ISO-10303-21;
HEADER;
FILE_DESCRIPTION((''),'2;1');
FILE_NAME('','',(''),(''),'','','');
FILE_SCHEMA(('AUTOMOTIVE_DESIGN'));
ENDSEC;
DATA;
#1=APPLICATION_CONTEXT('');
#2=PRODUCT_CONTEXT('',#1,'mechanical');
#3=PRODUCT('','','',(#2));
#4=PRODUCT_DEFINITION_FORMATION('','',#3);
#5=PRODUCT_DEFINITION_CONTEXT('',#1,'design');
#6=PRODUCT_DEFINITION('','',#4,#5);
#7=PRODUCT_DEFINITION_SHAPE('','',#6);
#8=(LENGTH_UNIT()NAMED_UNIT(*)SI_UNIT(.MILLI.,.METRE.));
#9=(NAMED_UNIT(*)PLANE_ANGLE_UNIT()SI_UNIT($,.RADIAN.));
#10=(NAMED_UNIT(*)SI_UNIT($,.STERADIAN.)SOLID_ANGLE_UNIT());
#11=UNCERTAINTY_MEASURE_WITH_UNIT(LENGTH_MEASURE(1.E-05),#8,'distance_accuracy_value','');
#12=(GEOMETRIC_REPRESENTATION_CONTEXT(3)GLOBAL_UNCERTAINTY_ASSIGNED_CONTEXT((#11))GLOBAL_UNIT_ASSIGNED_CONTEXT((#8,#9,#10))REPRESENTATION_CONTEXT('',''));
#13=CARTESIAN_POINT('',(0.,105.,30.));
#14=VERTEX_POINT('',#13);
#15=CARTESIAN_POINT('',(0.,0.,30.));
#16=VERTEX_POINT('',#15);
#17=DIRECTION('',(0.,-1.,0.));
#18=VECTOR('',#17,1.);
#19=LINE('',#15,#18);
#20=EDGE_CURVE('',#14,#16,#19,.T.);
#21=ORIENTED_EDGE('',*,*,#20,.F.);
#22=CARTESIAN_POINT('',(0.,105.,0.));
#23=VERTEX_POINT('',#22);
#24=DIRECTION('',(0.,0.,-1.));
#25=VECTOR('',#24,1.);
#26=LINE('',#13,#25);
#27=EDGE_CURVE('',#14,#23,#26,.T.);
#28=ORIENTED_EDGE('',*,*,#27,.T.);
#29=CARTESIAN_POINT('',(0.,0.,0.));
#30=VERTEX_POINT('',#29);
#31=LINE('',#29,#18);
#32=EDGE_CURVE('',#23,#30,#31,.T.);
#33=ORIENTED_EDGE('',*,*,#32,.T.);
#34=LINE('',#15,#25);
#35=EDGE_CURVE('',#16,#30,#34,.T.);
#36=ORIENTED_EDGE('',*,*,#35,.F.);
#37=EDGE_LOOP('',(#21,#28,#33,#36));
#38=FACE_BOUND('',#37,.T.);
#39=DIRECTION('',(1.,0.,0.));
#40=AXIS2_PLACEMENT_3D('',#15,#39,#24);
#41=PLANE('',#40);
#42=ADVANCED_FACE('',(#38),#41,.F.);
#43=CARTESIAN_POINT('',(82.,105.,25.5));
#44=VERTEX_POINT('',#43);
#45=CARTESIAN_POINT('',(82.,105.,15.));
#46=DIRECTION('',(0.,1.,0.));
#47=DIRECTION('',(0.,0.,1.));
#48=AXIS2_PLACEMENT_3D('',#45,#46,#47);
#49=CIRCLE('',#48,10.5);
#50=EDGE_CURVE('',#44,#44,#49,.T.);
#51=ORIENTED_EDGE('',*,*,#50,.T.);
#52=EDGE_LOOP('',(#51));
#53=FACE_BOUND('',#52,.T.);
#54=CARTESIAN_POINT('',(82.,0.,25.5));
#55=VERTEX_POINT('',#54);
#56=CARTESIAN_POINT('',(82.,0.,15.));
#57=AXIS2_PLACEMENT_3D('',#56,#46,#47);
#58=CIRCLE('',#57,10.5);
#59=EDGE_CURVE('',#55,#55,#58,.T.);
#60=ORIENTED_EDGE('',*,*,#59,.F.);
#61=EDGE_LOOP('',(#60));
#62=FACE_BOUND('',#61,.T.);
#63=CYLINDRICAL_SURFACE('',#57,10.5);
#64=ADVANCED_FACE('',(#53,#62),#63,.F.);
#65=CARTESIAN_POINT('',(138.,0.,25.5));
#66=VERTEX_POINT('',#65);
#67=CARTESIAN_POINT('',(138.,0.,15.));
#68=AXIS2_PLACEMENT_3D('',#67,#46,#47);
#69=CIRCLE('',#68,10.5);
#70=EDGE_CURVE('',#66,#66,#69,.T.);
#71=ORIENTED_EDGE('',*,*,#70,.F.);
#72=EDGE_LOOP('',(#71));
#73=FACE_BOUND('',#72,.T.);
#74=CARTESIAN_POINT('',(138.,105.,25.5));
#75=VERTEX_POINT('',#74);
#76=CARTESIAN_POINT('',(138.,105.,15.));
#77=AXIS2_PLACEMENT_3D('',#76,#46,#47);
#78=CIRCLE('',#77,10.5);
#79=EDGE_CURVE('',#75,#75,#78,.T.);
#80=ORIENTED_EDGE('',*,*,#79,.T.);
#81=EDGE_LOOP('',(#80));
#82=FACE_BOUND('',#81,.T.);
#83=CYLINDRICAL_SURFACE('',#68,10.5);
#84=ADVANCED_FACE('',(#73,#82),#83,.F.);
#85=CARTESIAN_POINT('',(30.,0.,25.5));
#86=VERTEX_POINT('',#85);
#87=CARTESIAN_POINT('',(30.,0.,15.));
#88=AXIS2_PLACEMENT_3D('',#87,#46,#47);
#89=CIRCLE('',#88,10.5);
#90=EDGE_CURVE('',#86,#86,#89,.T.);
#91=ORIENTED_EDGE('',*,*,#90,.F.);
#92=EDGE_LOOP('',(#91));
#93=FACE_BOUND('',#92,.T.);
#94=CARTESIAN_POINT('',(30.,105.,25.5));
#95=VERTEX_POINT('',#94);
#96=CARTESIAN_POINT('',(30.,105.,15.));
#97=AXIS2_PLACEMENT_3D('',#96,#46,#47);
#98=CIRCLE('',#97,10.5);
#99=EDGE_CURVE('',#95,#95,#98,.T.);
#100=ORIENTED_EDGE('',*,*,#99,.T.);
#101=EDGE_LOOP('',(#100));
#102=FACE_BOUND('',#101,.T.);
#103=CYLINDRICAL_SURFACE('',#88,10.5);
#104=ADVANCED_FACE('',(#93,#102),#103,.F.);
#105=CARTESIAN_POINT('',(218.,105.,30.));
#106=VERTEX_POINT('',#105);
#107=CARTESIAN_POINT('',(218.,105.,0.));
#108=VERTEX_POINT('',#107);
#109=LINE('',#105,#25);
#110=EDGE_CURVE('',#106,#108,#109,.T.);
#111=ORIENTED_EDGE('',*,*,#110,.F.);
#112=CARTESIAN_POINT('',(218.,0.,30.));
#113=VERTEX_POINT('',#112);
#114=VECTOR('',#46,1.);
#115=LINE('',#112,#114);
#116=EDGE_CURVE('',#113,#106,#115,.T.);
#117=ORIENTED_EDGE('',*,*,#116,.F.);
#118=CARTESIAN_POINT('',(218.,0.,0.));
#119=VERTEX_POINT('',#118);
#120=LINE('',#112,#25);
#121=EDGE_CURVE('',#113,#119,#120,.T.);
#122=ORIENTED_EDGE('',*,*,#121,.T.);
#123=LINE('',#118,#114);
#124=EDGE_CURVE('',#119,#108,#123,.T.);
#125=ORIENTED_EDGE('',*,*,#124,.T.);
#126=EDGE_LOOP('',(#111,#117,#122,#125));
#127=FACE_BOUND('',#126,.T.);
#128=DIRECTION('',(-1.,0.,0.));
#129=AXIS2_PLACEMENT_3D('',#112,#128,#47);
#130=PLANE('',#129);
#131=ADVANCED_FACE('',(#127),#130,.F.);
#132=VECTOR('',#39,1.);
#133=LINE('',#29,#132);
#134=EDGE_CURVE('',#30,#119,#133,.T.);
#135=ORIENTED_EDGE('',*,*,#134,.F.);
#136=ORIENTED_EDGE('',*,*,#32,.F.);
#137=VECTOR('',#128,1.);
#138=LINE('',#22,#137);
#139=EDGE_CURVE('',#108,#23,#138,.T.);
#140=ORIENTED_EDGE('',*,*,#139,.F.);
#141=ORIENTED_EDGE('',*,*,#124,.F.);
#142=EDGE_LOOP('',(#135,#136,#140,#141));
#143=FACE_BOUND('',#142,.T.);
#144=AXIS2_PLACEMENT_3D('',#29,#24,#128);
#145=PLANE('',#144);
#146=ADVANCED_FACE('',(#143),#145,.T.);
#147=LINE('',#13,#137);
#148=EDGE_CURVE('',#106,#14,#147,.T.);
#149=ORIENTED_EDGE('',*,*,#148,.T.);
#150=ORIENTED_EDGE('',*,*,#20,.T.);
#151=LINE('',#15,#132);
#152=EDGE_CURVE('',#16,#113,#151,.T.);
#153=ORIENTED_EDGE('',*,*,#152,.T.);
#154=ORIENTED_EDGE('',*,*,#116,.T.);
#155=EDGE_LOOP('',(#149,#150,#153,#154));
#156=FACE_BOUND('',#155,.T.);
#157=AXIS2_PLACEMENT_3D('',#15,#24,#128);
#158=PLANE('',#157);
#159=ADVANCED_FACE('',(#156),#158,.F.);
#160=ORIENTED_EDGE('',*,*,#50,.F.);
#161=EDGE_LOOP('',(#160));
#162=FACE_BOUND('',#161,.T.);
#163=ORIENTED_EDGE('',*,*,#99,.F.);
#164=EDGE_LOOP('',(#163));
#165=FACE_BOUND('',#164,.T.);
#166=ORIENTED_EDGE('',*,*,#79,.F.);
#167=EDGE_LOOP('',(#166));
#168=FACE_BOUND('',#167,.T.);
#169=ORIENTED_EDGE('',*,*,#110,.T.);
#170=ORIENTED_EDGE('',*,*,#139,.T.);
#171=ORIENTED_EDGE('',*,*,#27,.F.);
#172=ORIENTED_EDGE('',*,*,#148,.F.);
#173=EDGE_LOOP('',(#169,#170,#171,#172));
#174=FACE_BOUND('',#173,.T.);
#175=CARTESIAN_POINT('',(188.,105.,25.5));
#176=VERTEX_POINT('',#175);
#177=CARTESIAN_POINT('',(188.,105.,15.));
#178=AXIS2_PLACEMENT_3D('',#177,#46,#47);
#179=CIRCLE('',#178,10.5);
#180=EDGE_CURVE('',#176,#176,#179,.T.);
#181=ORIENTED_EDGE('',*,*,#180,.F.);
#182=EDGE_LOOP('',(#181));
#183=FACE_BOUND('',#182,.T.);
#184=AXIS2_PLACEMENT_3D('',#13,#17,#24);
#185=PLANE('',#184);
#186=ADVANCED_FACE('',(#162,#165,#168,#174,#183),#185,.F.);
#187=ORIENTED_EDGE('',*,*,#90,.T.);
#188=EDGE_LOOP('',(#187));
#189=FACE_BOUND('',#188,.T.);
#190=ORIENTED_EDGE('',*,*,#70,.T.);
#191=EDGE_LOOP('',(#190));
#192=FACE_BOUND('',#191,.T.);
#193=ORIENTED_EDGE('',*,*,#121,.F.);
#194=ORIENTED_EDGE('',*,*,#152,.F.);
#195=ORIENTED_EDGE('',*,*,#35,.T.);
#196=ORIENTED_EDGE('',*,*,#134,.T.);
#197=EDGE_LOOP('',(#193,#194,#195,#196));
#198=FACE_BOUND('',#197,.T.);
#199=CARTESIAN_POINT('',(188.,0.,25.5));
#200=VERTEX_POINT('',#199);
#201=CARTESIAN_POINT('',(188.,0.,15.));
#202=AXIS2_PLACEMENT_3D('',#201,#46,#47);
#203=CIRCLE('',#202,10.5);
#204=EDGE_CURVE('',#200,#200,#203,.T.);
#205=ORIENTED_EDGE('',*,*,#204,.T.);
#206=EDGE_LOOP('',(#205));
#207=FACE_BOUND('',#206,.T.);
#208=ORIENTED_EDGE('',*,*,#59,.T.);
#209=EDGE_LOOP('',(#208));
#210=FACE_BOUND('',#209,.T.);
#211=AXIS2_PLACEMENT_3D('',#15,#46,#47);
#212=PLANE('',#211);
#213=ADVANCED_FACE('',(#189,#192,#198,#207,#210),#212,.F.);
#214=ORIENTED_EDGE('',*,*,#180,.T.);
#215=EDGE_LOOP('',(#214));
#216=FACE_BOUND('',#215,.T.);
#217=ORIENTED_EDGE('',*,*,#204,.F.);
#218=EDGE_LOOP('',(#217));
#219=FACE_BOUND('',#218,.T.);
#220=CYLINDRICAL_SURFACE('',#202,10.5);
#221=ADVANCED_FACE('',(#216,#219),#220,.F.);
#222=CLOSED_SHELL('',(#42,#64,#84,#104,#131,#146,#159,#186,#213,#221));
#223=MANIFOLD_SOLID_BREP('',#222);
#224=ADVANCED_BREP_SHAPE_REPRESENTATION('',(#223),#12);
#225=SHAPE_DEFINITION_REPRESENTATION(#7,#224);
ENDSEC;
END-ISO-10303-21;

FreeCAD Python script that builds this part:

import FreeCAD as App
import Part
import Sketcher

V = App.Vector
Q = App.Units.Quantity


def add_polygon(sketch, points):
    """Adds a closed chain of lines whose ends are joined by coincident constraints."""
    first, n = sketch.GeometryCount, len(points)
    for a, b in zip(points, points[1:] + points[:1]):
        sketch.addGeometry(Part.LineSegment(App.Vector(*a, 0), App.Vector(*b, 0)), False)
    for i in range(n):
        sketch.addConstraint(Sketcher.Constraint("Coincident", first + i, 2, first + (i + 1) % n, 1))

doc = App.newDocument("Part")
params = doc.addObject("Spreadsheet::Sheet", "Params")
for row, (alias, value) in enumerate([
    ("sketch1_width", "218 mm"),
    ("sketch1_height", "105 mm"),
    ("pad1_length", "30 mm"),
    ("sketch2_diameter", "21 mm"),
], start=1):
    params.set(f"A{row}", alias)
    params.set(f"B{row}", "=" + value)
    params.setAlias(f"B{row}", alias)

body = doc.addObject("PartDesign::Body", "Body")

# Sketch on XY plane
sketch1 = body.newObject("Sketcher::SketchObject", "Sketch")
sketch1.AttachmentSupport = (doc.getObject("XY_Plane"), [""])
sketch1.MapMode = "FlatFace"
add_polygon(sketch1, [(0, 105), (0, 0), (218, 0), (218, 105)])  # lines 0-3
sketch1.addConstraint([
    Sketcher.Constraint("Vertical", 0),
    Sketcher.Constraint("Horizontal", 1),
    Sketcher.Constraint("Vertical", 2),
    Sketcher.Constraint("Horizontal", 3),
    Sketcher.Constraint("Coincident", 0, 2, -1, 1),
    Sketcher.Constraint("DistanceX", 1, 1, 1, 2, Q("218 mm")),
    Sketcher.Constraint("DistanceY", 0, 2, 0, 1, Q("105 mm")),
])
sketch1.setExpression("Constraints[9]", "Params.sketch1_width")
sketch1.setExpression("Constraints[10]", "Params.sketch1_height")
pad1 = body.newObject("PartDesign::Pad", "Pad")
pad1.Profile = sketch1
pad1.setExpression("Length", "Params.pad1_length")

# Sketch on XZ plane
sketch2 = body.newObject("Sketcher::SketchObject", "Sketch001")
sketch2.AttachmentSupport = (doc.getObject("XZ_Plane"), [""])
sketch2.MapMode = "FlatFace"
sketch2.AttachmentOffset = App.Placement(V(0, 0, -105), App.Rotation())
sketch2.addGeometry([
    Part.Circle(V(30, 15, 0), V(0, 0, 1), 10),
    Part.Circle(V(82, 15, 0), V(0, 0, 1), 10),
    Part.Circle(V(138, 15, 0), V(0, 0, 1), 10),
    Part.Circle(V(188, 15, 0), V(0, 0, 1), 10),
], False)
sketch2.addConstraint([
    Sketcher.Constraint("Equal", 0, 1),
    Sketcher.Constraint("Equal", 1, 2),
    Sketcher.Constraint("Equal", 2, 3),
    Sketcher.Constraint("Horizontal", 0, 3, 1, 3),
    Sketcher.Constraint("Horizontal", 1, 3, 2, 3),
    Sketcher.Constraint("Horizontal", 2, 3, 3, 3),
    Sketcher.Constraint("Diameter", 0, Q("21 mm")),
    Sketcher.Constraint("DistanceX", -1, 1, 0, 3, Q("30 mm")),
    Sketcher.Constraint("DistanceY", -1, 1, 0, 3, Q("15 mm")),
    Sketcher.Constraint("DistanceX", -1, 1, 1, 3, Q("82 mm")),
    Sketcher.Constraint("DistanceX", -1, 1, 2, 3, Q("138 mm")),
    Sketcher.Constraint("DistanceX", -1, 1, 3, 3, Q("188 mm")),
])
sketch2.setExpression("Constraints[6]", "Params.sketch2_diameter")
pocket1 = body.newObject("PartDesign::Pocket", "Pocket")
pocket1.Profile = sketch2
pocket1.Type = "ThroughAll"
pocket1.Reversed = True

doc.recompute()
